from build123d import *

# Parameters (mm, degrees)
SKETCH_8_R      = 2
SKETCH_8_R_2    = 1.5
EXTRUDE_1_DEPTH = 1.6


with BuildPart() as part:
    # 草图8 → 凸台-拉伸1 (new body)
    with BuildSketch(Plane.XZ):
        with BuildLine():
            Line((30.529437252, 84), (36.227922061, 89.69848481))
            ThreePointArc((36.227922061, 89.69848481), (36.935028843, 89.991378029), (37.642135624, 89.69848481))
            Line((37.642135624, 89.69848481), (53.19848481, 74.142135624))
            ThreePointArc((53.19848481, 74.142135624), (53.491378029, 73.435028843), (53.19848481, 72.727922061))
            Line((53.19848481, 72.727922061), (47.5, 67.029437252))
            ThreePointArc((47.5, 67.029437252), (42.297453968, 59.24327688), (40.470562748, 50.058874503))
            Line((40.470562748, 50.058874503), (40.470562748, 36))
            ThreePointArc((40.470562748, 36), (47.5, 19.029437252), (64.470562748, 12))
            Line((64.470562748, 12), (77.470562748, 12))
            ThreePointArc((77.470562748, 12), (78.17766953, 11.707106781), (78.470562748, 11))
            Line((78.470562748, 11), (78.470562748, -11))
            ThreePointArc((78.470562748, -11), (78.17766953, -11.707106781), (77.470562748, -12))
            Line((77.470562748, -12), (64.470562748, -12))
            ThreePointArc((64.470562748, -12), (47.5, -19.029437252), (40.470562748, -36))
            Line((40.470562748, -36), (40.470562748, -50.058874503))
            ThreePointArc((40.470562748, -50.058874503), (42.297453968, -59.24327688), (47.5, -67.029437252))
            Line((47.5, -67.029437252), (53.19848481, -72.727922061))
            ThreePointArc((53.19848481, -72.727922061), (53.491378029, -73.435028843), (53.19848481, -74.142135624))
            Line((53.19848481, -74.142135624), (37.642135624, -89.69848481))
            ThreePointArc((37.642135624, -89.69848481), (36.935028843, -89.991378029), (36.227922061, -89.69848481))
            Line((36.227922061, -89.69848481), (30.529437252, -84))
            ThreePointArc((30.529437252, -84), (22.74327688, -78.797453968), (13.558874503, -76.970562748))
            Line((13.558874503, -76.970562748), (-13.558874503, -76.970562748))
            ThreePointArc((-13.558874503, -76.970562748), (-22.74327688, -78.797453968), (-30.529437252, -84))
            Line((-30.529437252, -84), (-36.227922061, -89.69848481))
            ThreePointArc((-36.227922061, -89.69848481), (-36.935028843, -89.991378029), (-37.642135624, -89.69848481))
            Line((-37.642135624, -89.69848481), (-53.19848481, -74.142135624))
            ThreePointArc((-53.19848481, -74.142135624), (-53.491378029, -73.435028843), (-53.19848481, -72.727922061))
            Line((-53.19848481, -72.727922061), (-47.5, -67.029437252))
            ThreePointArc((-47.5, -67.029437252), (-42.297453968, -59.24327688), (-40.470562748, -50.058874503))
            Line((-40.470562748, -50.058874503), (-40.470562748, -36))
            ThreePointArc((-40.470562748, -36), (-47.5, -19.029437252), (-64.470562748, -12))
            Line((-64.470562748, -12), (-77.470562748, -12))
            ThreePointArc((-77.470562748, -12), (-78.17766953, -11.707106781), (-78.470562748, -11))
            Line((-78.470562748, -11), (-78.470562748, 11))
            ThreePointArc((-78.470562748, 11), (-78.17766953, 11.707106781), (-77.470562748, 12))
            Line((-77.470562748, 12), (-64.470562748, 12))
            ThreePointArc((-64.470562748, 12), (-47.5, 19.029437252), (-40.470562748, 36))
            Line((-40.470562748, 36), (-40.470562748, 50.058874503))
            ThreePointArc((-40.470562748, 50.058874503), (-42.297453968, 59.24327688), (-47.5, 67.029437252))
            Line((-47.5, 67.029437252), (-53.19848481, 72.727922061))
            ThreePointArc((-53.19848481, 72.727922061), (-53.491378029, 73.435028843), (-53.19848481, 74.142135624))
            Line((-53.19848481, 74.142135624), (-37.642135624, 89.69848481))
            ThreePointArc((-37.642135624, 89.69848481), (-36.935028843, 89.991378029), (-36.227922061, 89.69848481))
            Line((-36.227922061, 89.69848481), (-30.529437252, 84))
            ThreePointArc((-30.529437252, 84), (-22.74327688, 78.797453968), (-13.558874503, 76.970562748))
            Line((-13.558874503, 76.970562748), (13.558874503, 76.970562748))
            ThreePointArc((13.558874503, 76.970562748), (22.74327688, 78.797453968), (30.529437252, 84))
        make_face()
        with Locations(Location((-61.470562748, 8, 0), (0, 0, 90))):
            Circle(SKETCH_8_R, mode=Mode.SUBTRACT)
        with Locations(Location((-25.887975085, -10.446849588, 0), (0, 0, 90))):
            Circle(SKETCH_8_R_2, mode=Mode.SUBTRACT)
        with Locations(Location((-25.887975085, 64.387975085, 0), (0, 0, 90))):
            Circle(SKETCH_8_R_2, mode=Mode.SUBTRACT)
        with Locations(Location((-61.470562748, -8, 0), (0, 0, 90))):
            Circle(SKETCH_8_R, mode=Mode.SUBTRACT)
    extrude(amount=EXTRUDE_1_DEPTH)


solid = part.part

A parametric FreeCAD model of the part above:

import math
import FreeCAD as App
import Part
import Sketcher
from FreeCAD import Vector

doc = App.newDocument("Part")
params = doc.addObject("Spreadsheet::Sheet", "Params")
for row, (alias, value) in enumerate([
    ("sketch1_diameter", "3 mm"),
    ("sketch1_diameter2", "4 mm"),
    ("sketch1_radius", "24 mm"),
    ("sketch1_radius2", "1 mm"),
    ("sketch1_width", "13 mm"),
    ("pad1_length", "1.6 mm"),
], start=1):
    params.set(f"A{row}", alias)
    params.set(f"B{row}", "=" + value)
    params.setAlias(f"B{row}", alias)

body = doc.addObject("PartDesign::Body", "Body")

# Sketch on XZ plane
sketch1 = body.newObject("Sketcher::SketchObject", "Sketch")
sketch1.AttachmentSupport = (doc.getObject("XZ_Plane"), [""])
sketch1.MapMode = "FlatFace"
sketch1.addGeometry([
    Part.LineSegment(Vector(36.227922, 89.698485, 0), Vector(30.529437, 84, 0)),  # 0
    Part.ArcOfCircle(Part.Circle(Vector(13.558875, 100.970563, 0), Vector(0, 0, 1), 24), math.radians(-90), math.radians(-45)),  # 1
    Part.LineSegment(Vector(13.558875, 76.970563, 0), Vector(-13.558875, 76.970563, 0)),  # 2
    Part.ArcOfCircle(Part.Circle(Vector(-13.558875, 100.970563, 0), Vector(0, 0, 1), 24), math.radians(-135), math.radians(-90)),  # 3
    Part.LineSegment(Vector(-30.529437, 84, 0), Vector(-36.227922, 89.698485, 0)),  # 4
    Part.ArcOfCircle(Part.Circle(Vector(-36.935029, 88.991378, 0), Vector(0, 0, 1), 1), math.radians(45), math.radians(135)),  # 5
    Part.LineSegment(Vector(-37.642136, 89.698485, 0), Vector(-53.198485, 74.142136, 0)),  # 6
    Part.ArcOfCircle(Part.Circle(Vector(-52.491378, 73.435029, 0), Vector(0, 0, 1), 1), math.radians(135), math.radians(225)),  # 7
    Part.LineSegment(Vector(-53.198485, 72.727922, 0), Vector(-47.5, 67.029437, 0)),  # 8
    Part.ArcOfCircle(Part.Circle(Vector(-64.470563, 50.058875, 0), Vector(0, 0, 1), 24), math.radians(0), math.radians(45)),  # 9
    Part.LineSegment(Vector(-40.470563, 50.058875, 0), Vector(-40.470563, 36, 0)),  # 10
    Part.ArcOfCircle(Part.Circle(Vector(-64.470563, 36, 0), Vector(0, 0, 1), 24), math.radians(-90), math.radians(0)),  # 11
    Part.LineSegment(Vector(-64.470563, 12, 0), Vector(-77.470563, 12, 0)),  # 12
    Part.ArcOfCircle(Part.Circle(Vector(-77.470563, 11, 0), Vector(0, 0, 1), 1), math.radians(90), math.radians(180)),  # 13
    Part.LineSegment(Vector(-78.470563, 11, 0), Vector(-78.470563, -11, 0)),  # 14
    Part.ArcOfCircle(Part.Circle(Vector(-77.470563, -11, 0), Vector(0, 0, 1), 1), math.radians(180), math.radians(270)),  # 15
    Part.LineSegment(Vector(-77.470563, -12, 0), Vector(-64.470563, -12, 0)),  # 16
    Part.ArcOfCircle(Part.Circle(Vector(-64.470563, -36, 0), Vector(0, 0, 1), 24), math.radians(0), math.radians(90)),  # 17
    Part.LineSegment(Vector(-40.470563, -36, 0), Vector(-40.470563, -50.058875, 0)),  # 18
    Part.ArcOfCircle(Part.Circle(Vector(-64.470563, -50.058875, 0), Vector(0, 0, 1), 24), math.radians(-45), math.radians(0)),  # 19
    Part.LineSegment(Vector(-47.5, -67.029437, 0), Vector(-53.198485, -72.727922, 0)),  # 20
    Part.ArcOfCircle(Part.Circle(Vector(-52.491378, -73.435029, 0), Vector(0, 0, 1), 1), math.radians(135), math.radians(225)),  # 21
    Part.LineSegment(Vector(-53.198485, -74.142136, 0), Vector(-37.642136, -89.698485, 0)),  # 22
    Part.ArcOfCircle(Part.Circle(Vector(-36.935029, -88.991378, 0), Vector(0, 0, 1), 1), math.radians(-135), math.radians(-45)),  # 23
    Part.LineSegment(Vector(-36.227922, -89.698485, 0), Vector(-30.529437, -84, 0)),  # 24
    Part.ArcOfCircle(Part.Circle(Vector(-13.558875, -100.970563, 0), Vector(0, 0, 1), 24), math.radians(90), math.radians(135)),  # 25
    Part.LineSegment(Vector(-13.558875, -76.970563, 0), Vector(13.558875, -76.970563, 0)),  # 26
    Part.ArcOfCircle(Part.Circle(Vector(13.558875, -100.970563, 0), Vector(0, 0, 1), 24), math.radians(45), math.radians(90)),  # 27
    Part.LineSegment(Vector(30.529437, -84, 0), Vector(36.227922, -89.698485, 0)),  # 28
    Part.ArcOfCircle(Part.Circle(Vector(36.935029, -88.991378, 0), Vector(0, 0, 1), 1), math.radians(-135), math.radians(-45)),  # 29
    Part.LineSegment(Vector(37.642136, -89.698485, 0), Vector(53.198485, -74.142136, 0)),  # 30
    Part.ArcOfCircle(Part.Circle(Vector(52.491378, -73.435029, 0), Vector(0, 0, 1), 1), math.radians(-45), math.radians(45)),  # 31
    Part.LineSegment(Vector(53.198485, -72.727922, 0), Vector(47.5, -67.029437, 0)),  # 32
    Part.ArcOfCircle(Part.Circle(Vector(64.470563, -50.058875, 0), Vector(0, 0, 1), 24), math.radians(-180), math.radians(-135)),  # 33
    Part.LineSegment(Vector(40.470563, -50.058875, 0), Vector(40.470563, -36, 0)),  # 34
    Part.ArcOfCircle(Part.Circle(Vector(64.470563, -36, 0), Vector(0, 0, 1), 24), math.radians(90), math.radians(180)),  # 35
    Part.LineSegment(Vector(64.470563, -12, 0), Vector(77.470563, -12, 0)),  # 36
    Part.ArcOfCircle(Part.Circle(Vector(77.470563, -11, 0), Vector(0, 0, 1), 1), math.radians(-90), math.radians(0)),  # 37
    Part.LineSegment(Vector(78.470563, -11, 0), Vector(78.470563, 11, 0)),  # 38
    Part.ArcOfCircle(Part.Circle(Vector(77.470563, 11, 0), Vector(0, 0, 1), 1), math.radians(0), math.radians(90)),  # 39
    Part.LineSegment(Vector(77.470563, 12, 0), Vector(64.470563, 12, 0)),  # 40
    Part.ArcOfCircle(Part.Circle(Vector(64.470563, 36, 0), Vector(0, 0, 1), 24), math.radians(-180), math.radians(-90)),  # 41
    Part.LineSegment(Vector(40.470563, 36, 0), Vector(40.470563, 50.058875, 0)),  # 42
    Part.ArcOfCircle(Part.Circle(Vector(64.470563, 50.058875, 0), Vector(0, 0, 1), 24), math.radians(135), math.radians(180)),  # 43
    Part.LineSegment(Vector(47.5, 67.029437, 0), Vector(53.198485, 72.727922, 0)),  # 44
    Part.ArcOfCircle(Part.Circle(Vector(52.491378, 73.435029, 0), Vector(0, 0, 1), 1), math.radians(-45), math.radians(45)),  # 45
    Part.LineSegment(Vector(53.198485, 74.142136, 0), Vector(37.642136, 89.698485, 0)),  # 46
    Part.ArcOfCircle(Part.Circle(Vector(36.935029, 88.991378, 0), Vector(0, 0, 1), 1), math.radians(45), math.radians(135)),  # 47
    Part.Circle(Vector(-25.887975, -10.44685, 0), Vector(0, 0, 1), 1.5),  # 48
    Part.Circle(Vector(-61.470563, -8, 0), Vector(0, 0, 1), 2),  # 49
    Part.Circle(Vector(-61.470563, 8, 0), Vector(0, 0, 1), 2),  # 50
    Part.Circle(Vector(-25.887975, 64.387975, 0), Vector(0, 0, 1), 1.5),  # 51
], False)
sketch1.addConstraint([
    Sketcher.Constraint("Tangent", 0, 2, 1, 2),
    Sketcher.Constraint("Tangent", 1, 1, 2, 1),
    Sketcher.Constraint("Tangent", 2, 2, 3, 2),
    Sketcher.Constraint("Tangent", 3, 1, 4, 1),
    Sketcher.Constraint("Tangent", 4, 2, 5, 1),
    Sketcher.Constraint("Tangent", 5, 2, 6, 1),
    Sketcher.Constraint("Tangent", 6, 2, 7, 1),
    Sketcher.Constraint("Tangent", 7, 2, 8, 1),
    Sketcher.Constraint("Tangent", 8, 2, 9, 2),
    Sketcher.Constraint("Tangent", 9, 1, 10, 1),
    Sketcher.Constraint("Tangent", 10, 2, 11, 2),
    Sketcher.Constraint("Tangent", 11, 1, 12, 1),
    Sketcher.Constraint("Tangent", 12, 2, 13, 1),
    Sketcher.Constraint("Tangent", 13, 2, 14, 1),
    Sketcher.Constraint("Tangent", 14, 2, 15, 1),
    Sketcher.Constraint("Tangent", 15, 2, 16, 1),
    Sketcher.Constraint("Tangent", 16, 2, 17, 2),
    Sketcher.Constraint("Tangent", 17, 1, 18, 1),
    Sketcher.Constraint("Tangent", 18, 2, 19, 2),
    Sketcher.Constraint("Tangent", 19, 1, 20, 1),
    Sketcher.Constraint("Tangent", 20, 2, 21, 1),
    Sketcher.Constraint("Tangent", 21, 2, 22, 1),
    Sketcher.Constraint("Tangent", 22, 2, 23, 1),
    Sketcher.Constraint("Tangent", 23, 2, 24, 1),
    Sketcher.Constraint("Tangent", 24, 2, 25, 2),
    Sketcher.Constraint("Tangent", 25, 1, 26, 1),
    Sketcher.Constraint("Tangent", 26, 2, 27, 2),
    Sketcher.Constraint("Tangent", 27, 1, 28, 1),
    Sketcher.Constraint("Tangent", 28, 2, 29, 1),
    Sketcher.Constraint("Tangent", 29, 2, 30, 1),
    Sketcher.Constraint("Tangent", 30, 2, 31, 1),
    Sketcher.Constraint("Tangent", 31, 2, 32, 1),
    Sketcher.Constraint("Tangent", 32, 2, 33, 2),
    Sketcher.Constraint("Tangent", 33, 1, 34, 1),
    Sketcher.Constraint("Tangent", 34, 2, 35, 2),
    Sketcher.Constraint("Tangent", 35, 1, 36, 1),
    Sketcher.Constraint("Tangent", 36, 2, 37, 1),
    Sketcher.Constraint("Tangent", 37, 2, 38, 1),
    Sketcher.Constraint("Tangent", 38, 2, 39, 1),
    Sketcher.Constraint("Tangent", 39, 2, 40, 1),
    Sketcher.Constraint("Tangent", 40, 2, 41, 2),
    Sketcher.Constraint("Tangent", 41, 1, 42, 1),
    Sketcher.Constraint("Tangent", 42, 2, 43, 2),
    Sketcher.Constraint("Tangent", 43, 1, 44, 1),
    Sketcher.Constraint("Tangent", 44, 2, 45, 1),
    Sketcher.Constraint("Tangent", 45, 2, 46, 1),
    Sketcher.Constraint("Tangent", 46, 2, 47, 1),
    Sketcher.Constraint("Tangent", 47, 2, 0, 1),
    Sketcher.Constraint("Horizontal", 2),
    Sketcher.Constraint("Vertical", 10),
    Sketcher.Constraint("Horizontal", 12),
    Sketcher.Constraint("Vertical", 14),
    Sketcher.Constraint("Horizontal", 16),
    Sketcher.Constraint("Vertical", 18),
    Sketcher.Constraint("Horizontal", 26),
    Sketcher.Constraint("Vertical", 34),
    Sketcher.Constraint("Horizontal", 36),
    Sketcher.Constraint("Vertical", 38),
    Sketcher.Constraint("Horizontal", 40),
    Sketcher.Constraint("Vertical", 42),
    Sketcher.Constraint("Equal", 1, 3),
    Sketcher.Constraint("Equal", 5, 7),
    Sketcher.Constraint("Equal", 3, 9),
    Sketcher.Constraint("Equal", 9, 11),
    Sketcher.Constraint("Equal", 7, 13),
    Sketcher.Constraint("Equal", 13, 15),
    Sketcher.Constraint("Equal", 11, 17),
    Sketcher.Constraint("Equal", 17, 19),
    Sketcher.Constraint("Equal", 15, 21),
    Sketcher.Constraint("Equal", 21, 23),
    Sketcher.Constraint("Equal", 19, 25),
    Sketcher.Constraint("Equal", 25, 27),
    Sketcher.Constraint("Equal", 23, 29),
    Sketcher.Constraint("Equal", 29, 31),
    Sketcher.Constraint("Equal", 27, 33),
    Sketcher.Constraint("Equal", 33, 35),
    Sketcher.Constraint("Equal", 31, 37),
    Sketcher.Constraint("Equal", 37, 39),
    Sketcher.Constraint("Equal", 35, 41),
    Sketcher.Constraint("Equal", 41, 43),
    Sketcher.Constraint("Equal", 39, 45),
    Sketcher.Constraint("Equal", 45, 47),
    Sketcher.Constraint("Equal", 49, 50),
    Sketcher.Constraint("Equal", 48, 51),
    Sketcher.Constraint("Symmetric", 1, 3, 25, 3, -1, 1),
    Sketcher.Constraint("Symmetric", 5, 3, 29, 3, -1, 1),
    Sketcher.Constraint("Symmetric", 7, 3, 31, 3, -1, 1),
    Sketcher.Constraint("Symmetric", 9, 3, 33, 3, -1, 1),
    Sketcher.Constraint("Symmetric", 13, 3, 37, 3, -1, 1),
    Sketcher.Constraint("Symmetric", 17, 3, 41, 3, -1, 1),
    Sketcher.Constraint("Symmetric", 21, 3, 45, 3, -1, 1),
    Sketcher.Constraint("Symmetric", 23, 3, 47, 3, -1, 1),
    Sketcher.Constraint("Symmetric", 23, 3, 29, 3, -2),
    Sketcher.Constraint("Symmetric", 21, 3, 31, 3, -2),
    Sketcher.Constraint("Symmetric", 19, 3, 33, 3, -2),
    Sketcher.Constraint("Symmetric", 49, 3, 50, 3, -1),
    Sketcher.Constraint("Perpendicular", 0, 4),
    Sketcher.Constraint("Perpendicular", 4, 6),
    Sketcher.Constraint("Perpendicular", 6, 8),
    Sketcher.Constraint("Perpendicular", 8, 20),
    Sketcher.Constraint("Perpendicular", 24, 28),
    Sketcher.Constraint("Perpendicular", 32, 44),
    Sketcher.Constraint("Horizontal", 17, 3, 35, 3),
    Sketcher.Constraint("Vertical", 48, 3, 51, 3),
    Sketcher.Constraint("Equal", 4, 8),
    Sketcher.Constraint("Diameter", 48, 3.0),
    Sketcher.Constraint("Diameter", 49, 4.0),
    Sketcher.Constraint("Radius", 1, 24.0),
    Sketcher.Constraint("Radius", 5, 1.0),
    Sketcher.Constraint("DistanceX", 12, 2, 12, 1, 13.0),
    Sketcher.Constraint("DistanceY", 14, 2, 14, 1, 22.0),
    Sketcher.Constraint("Distance", 6, 22.0),
    Sketcher.Constraint("DistanceY", 49, 3, -1, 1, 8.0),
    Sketcher.Constraint("DistanceY", -1, 1, 0, 2, 84.0),
    Sketcher.Constraint("DistanceX", 8, 2, -1, 1, 47.5),
    Sketcher.Constraint("DistanceX", 5, 3, -1, 1, 36.935029),
    Sketcher.Constraint("DistanceY", 48, 3, -1, 1, 10.44685),
    Sketcher.Constraint("DistanceX", 48, 3, -1, 1, 25.887975),
    Sketcher.Constraint("DistanceX", 49, 3, -1, 1, 61.470563),
    Sketcher.Constraint("DistanceY", -1, 1, 51, 3, 64.387975),
])
sketch1.setExpression("Constraints[105]", "Params.sketch1_diameter")
sketch1.setExpression("Constraints[106]", "Params.sketch1_diameter2")
sketch1.setExpression("Constraints[107]", "Params.sketch1_radius")
sketch1.setExpression("Constraints[108]", "Params.sketch1_radius2")
sketch1.setExpression("Constraints[109]", "Params.sketch1_width")
pad1 = body.newObject("PartDesign::Pad", "Pad")
pad1.Profile = sketch1
pad1.setExpression("Length", "Params.pad1_length")

doc.recompute()
